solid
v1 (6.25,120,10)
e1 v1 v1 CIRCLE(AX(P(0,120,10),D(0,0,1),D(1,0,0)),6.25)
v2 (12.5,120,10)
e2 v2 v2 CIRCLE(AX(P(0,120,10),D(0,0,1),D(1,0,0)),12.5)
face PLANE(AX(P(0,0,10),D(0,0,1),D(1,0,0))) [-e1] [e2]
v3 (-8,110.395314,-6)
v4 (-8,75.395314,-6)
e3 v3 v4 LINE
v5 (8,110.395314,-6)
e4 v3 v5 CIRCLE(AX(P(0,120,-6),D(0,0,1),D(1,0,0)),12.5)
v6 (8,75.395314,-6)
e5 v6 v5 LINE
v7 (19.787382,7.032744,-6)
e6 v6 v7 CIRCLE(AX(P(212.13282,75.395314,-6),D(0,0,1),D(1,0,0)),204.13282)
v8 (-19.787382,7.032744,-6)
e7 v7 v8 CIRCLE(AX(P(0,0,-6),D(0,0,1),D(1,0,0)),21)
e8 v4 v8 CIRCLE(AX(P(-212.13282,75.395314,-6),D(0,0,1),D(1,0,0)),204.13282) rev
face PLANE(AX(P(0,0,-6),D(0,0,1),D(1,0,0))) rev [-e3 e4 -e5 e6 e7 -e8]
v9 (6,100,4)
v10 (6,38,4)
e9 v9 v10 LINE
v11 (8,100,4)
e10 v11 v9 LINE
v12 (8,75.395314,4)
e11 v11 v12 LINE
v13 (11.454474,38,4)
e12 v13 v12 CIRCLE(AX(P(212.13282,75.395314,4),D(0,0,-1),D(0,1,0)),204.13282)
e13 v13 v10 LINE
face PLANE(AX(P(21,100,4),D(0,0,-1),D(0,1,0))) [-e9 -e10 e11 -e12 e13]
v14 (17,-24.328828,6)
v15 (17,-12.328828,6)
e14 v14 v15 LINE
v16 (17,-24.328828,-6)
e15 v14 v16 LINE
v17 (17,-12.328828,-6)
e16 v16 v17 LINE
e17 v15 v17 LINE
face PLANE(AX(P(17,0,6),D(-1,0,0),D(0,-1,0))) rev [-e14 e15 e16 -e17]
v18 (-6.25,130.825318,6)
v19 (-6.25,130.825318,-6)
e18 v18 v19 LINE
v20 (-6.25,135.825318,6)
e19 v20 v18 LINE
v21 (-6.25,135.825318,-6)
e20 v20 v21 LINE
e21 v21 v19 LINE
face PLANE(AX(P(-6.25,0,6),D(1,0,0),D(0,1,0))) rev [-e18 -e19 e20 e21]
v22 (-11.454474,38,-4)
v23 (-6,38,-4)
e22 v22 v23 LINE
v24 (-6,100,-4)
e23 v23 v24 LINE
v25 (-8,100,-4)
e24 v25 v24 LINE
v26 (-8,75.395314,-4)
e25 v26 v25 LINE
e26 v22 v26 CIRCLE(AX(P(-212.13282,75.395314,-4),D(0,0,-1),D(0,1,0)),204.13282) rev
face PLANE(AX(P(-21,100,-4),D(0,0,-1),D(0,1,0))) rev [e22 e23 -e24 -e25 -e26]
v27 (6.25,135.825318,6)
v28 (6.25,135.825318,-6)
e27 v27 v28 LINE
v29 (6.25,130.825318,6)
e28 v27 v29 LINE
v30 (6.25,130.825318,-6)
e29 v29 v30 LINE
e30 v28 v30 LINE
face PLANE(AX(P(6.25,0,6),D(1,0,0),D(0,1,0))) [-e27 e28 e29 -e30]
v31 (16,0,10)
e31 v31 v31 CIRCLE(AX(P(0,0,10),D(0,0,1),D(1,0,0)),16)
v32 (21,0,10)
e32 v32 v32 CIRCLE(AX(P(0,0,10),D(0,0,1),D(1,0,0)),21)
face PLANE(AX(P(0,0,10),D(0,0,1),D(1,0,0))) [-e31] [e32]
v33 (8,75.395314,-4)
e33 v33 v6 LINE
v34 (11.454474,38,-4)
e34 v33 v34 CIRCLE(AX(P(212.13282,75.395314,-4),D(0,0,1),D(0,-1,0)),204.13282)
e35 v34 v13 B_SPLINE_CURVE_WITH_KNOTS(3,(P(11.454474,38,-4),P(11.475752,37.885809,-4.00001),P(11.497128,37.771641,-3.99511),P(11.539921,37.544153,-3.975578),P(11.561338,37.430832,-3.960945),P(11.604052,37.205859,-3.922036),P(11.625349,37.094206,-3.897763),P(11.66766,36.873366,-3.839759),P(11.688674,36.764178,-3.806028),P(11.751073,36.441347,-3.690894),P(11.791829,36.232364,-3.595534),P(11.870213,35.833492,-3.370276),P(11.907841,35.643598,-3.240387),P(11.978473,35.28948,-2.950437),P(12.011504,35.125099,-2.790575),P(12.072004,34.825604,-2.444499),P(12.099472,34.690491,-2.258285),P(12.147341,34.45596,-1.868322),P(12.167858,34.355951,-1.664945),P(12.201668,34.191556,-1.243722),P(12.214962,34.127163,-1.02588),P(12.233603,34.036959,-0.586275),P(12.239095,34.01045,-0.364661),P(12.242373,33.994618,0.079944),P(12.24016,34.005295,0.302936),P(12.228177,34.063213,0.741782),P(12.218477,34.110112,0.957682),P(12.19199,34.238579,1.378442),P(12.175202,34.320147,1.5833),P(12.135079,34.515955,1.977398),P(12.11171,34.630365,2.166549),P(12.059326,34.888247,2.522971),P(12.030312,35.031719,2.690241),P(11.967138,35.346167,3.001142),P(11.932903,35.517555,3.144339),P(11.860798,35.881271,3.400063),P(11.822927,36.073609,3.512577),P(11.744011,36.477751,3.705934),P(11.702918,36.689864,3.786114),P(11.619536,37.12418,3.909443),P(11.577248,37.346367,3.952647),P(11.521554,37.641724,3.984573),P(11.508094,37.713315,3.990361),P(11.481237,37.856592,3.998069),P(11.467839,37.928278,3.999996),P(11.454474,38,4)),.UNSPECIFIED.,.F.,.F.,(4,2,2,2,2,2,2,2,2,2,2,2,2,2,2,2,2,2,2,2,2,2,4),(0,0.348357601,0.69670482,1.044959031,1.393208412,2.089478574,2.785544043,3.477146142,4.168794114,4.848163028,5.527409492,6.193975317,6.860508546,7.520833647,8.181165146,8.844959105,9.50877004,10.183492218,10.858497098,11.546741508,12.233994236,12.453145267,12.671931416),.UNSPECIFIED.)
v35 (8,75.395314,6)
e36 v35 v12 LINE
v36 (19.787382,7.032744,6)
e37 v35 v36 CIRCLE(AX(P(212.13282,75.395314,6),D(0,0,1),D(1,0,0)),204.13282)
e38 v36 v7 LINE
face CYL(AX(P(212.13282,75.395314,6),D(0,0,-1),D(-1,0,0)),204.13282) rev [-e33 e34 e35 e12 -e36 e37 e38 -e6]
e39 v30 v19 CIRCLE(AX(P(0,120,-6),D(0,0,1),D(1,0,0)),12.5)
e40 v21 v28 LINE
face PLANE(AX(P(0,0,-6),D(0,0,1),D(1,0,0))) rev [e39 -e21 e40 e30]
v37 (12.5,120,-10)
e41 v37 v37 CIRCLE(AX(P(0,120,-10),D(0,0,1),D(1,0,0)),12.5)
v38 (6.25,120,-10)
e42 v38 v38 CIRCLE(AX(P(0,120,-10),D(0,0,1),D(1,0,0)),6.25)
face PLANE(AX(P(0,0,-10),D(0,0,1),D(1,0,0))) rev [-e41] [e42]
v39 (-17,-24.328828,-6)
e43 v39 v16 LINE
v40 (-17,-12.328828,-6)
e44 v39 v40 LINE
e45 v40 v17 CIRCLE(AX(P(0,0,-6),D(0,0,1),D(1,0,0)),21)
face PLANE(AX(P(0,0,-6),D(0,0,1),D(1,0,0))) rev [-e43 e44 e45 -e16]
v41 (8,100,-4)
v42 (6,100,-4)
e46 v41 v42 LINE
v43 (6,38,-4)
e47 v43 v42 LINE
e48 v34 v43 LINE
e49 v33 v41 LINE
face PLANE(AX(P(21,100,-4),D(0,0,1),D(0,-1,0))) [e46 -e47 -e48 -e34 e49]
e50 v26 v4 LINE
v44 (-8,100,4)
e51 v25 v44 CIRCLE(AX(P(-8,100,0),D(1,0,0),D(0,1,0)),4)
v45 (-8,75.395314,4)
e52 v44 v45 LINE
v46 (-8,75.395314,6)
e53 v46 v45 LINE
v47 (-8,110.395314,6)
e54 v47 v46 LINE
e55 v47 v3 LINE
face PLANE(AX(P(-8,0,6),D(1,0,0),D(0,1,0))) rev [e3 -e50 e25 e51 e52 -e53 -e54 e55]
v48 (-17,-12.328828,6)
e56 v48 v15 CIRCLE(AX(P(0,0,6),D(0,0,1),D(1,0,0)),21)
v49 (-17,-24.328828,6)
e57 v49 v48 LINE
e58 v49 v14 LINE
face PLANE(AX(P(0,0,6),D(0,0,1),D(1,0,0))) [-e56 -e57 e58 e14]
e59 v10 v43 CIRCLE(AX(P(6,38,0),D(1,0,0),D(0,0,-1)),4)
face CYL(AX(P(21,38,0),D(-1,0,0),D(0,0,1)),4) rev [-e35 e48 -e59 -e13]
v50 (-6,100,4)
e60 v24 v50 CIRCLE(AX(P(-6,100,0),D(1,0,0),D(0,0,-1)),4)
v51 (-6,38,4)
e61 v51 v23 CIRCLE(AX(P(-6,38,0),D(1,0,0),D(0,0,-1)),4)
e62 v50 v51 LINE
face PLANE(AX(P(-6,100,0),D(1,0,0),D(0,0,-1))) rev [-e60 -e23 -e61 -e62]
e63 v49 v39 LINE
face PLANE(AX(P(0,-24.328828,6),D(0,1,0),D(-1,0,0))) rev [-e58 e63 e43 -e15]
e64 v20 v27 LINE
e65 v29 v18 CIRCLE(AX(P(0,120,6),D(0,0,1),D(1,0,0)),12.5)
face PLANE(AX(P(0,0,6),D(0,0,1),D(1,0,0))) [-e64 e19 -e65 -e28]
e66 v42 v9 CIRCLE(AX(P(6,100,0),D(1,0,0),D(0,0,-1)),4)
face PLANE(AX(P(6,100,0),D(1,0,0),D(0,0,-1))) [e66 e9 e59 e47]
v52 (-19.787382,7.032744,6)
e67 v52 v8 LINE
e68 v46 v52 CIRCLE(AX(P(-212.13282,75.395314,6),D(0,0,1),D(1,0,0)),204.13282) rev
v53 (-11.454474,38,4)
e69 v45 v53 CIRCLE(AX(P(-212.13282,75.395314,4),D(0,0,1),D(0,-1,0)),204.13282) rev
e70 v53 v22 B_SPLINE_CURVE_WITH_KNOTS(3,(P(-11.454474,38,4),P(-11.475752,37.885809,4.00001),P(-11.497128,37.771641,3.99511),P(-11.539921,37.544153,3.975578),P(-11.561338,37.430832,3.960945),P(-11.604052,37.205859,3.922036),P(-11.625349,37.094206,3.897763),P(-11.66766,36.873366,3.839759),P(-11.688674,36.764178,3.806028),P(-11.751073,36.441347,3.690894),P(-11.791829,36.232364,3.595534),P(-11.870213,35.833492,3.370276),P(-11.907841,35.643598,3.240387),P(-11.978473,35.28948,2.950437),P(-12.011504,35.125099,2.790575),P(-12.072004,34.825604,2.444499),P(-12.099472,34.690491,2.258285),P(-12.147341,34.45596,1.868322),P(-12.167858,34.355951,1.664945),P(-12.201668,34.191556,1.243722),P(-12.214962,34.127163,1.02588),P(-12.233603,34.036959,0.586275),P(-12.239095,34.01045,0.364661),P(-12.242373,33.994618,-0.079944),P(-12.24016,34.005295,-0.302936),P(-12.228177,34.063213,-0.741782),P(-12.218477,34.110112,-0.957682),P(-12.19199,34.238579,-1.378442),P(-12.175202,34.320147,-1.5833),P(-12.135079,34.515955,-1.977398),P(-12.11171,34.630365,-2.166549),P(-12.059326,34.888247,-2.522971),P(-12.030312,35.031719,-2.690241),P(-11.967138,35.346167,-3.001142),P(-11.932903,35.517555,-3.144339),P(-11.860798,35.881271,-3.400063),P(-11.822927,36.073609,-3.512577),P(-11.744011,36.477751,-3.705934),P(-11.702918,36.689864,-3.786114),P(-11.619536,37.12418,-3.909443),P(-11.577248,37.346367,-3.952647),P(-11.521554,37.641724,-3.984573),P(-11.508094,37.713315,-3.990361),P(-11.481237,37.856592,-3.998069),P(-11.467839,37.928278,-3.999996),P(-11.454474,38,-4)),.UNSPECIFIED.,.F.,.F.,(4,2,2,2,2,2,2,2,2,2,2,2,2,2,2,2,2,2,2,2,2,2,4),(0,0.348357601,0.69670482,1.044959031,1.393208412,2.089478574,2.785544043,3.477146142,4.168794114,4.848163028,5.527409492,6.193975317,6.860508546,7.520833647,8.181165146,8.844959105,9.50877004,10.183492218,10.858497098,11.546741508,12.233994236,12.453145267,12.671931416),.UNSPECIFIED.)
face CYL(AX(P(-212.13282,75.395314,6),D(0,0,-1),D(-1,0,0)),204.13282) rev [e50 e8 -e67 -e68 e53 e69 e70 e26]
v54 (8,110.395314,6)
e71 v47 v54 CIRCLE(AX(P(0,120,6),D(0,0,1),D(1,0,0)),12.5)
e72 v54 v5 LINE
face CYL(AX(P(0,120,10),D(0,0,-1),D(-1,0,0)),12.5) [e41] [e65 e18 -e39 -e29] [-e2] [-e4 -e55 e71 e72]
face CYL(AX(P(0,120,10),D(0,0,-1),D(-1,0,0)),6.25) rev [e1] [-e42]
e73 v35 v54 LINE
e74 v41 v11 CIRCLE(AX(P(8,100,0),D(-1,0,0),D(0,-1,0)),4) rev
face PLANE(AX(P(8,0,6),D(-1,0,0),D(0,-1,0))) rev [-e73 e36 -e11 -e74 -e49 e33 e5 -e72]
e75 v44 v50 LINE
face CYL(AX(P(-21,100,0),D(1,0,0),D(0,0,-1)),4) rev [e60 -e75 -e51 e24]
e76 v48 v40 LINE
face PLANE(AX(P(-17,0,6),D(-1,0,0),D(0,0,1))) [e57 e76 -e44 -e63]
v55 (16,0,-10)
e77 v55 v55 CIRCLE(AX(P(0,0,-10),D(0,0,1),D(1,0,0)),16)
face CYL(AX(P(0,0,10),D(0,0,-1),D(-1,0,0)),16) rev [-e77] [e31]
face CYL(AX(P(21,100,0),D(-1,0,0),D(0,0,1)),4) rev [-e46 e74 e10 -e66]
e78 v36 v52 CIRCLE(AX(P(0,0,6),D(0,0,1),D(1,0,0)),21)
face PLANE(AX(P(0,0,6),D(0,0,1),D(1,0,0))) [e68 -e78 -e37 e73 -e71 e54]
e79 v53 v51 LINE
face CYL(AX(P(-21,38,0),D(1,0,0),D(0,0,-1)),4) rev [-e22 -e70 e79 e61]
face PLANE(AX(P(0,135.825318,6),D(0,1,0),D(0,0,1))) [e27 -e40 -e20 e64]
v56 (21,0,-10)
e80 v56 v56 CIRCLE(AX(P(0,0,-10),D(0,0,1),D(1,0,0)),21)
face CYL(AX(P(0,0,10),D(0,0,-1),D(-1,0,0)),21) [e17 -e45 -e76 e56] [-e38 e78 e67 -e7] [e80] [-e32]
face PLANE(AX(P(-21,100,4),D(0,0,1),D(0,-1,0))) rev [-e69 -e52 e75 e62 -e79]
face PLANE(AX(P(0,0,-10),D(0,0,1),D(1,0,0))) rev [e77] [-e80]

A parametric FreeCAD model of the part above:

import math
import FreeCAD as App
import Part
import Sketcher

V = App.Vector

doc = App.newDocument("Part")
body = doc.addObject("PartDesign::Body", "Body")

sketch1 = body.newObject("Sketcher::SketchObject", "Sketch")
sketch1.AttachmentSupport = (doc.getObject("XY_Plane"), [""])
sketch1.MapMode = "FlatFace"
sketch1.addGeometry([
    Part.Circle(V(0, 0, 0), V(0, 0, 1), 21),
    Part.Circle(V(0, 0, 0), V(0, 0, 1), 16),
], False)
sketch1.addConstraint([
    Sketcher.Constraint("Coincident", 0, 3, -1, 1),
    Sketcher.Constraint("Coincident", 1, 3, -1, 1),
    Sketcher.Constraint("Diameter", 0, 42.0),
    Sketcher.Constraint("Diameter", 1, 32.0),
])
pad1 = body.newObject("PartDesign::Pad", "Pad")
pad1.Profile = sketch1
pad1.Length = 20
pad1.Midplane = True
body2 = doc.addObject("PartDesign::Body", "Body001")

sketch2 = body2.newObject("Sketcher::SketchObject", "Sketch001")
sketch2.AttachmentSupport = (doc.getObject("XY_Plane001"), [""])
sketch2.MapMode = "FlatFace"
sketch2.addGeometry([
    Part.Circle(V(0, 120, 0), V(0, 0, 1), 12.5),
    Part.Circle(V(0, 120, 0), V(0, 0, 1), 6.25),
], False)
sketch2.addConstraint([
    Sketcher.Constraint("Coincident", 1, 3, 0, 3),
    Sketcher.Constraint("PointOnObject", 0, 3, -2),
    Sketcher.Constraint("Diameter", 0, 25.0),
    Sketcher.Constraint("Diameter", 1, 12.5),
    Sketcher.Constraint("DistanceY", -1, 1, 0, 3, 120.0),
])
pad2 = body2.newObject("PartDesign::Pad", "Pad001")
pad2.Profile = sketch2
pad2.Length = 20
pad2.Midplane = True
body.AllowCompound = True
doc.recompute()

boolean = body.newObject("PartDesign::Boolean", "Boolean")
boolean.Type = "Fuse"
boolean.addObjects([body2])

sketch3 = body.newObject("Sketcher::SketchObject", "Sketch002")
sketch3.AttachmentSupport = (doc.getObject("XY_Plane"), [""])
sketch3.MapMode = "FlatFace"
sketch3.addGeometry([
    Part.ArcOfCircle(Part.Circle(V(0, 120, 0), V(0, 0, 1), 12.5), math.radians(-129.791819), math.radians(-50.208181)),
    Part.LineSegment(V(-8, 110.395314, 0), V(-8, 75.395314, 0)),
    Part.ArcOfCircle(Part.Circle(V(-212.13282, 75.395314, 0), V(0, 0, 1), 204.13282), math.radians(-19.566007), math.radians(0)),
    Part.ArcOfCircle(Part.Circle(V(0, 0, 0), V(0, 0, 1), 21), math.radians(19.566007), math.radians(160.433993)),
    Part.ArcOfCircle(Part.Circle(V(212.13282, 75.395314, 0), V(0, 0, 1), 204.13282), math.radians(180), math.radians(199.566007)),
    Part.LineSegment(V(8, 75.395314, 0), V(8, 110.395314, 0)),
], False)
sketch3.addConstraint([
    Sketcher.Constraint("Coincident", 0, 1, 1, 1),
    Sketcher.Constraint("Tangent", 1, 2, 2, 2),
    Sketcher.Constraint("Tangent", 2, 1, 3, 2),
    Sketcher.Constraint("Tangent", 3, 1, 4, 2),
    Sketcher.Constraint("Tangent", 4, 1, 5, 1),
    Sketcher.Constraint("Coincident", 5, 2, 0, 2),
    Sketcher.Constraint("Vertical", 1),
    Sketcher.Constraint("Vertical", 5),
    Sketcher.Constraint("Coincident", 3, 3, -1, 1),
    Sketcher.Constraint("Equal", 2, 4),
    Sketcher.Constraint("Symmetric", 0, 1, 5, 2, -2),
    Sketcher.Constraint("Radius", 3, 21.0),
    Sketcher.Constraint("Radius", 0, 12.5),
    Sketcher.Constraint("DistanceY", 1, 2, 1, 1, 35.0),
    Sketcher.Constraint("DistanceY", -1, 1, 0, 3, 120.0),
    Sketcher.Constraint("DistanceX", 0, 1, -1, 1, 8.0),
])
pad3 = body.newObject("PartDesign::Pad", "Pad002")
pad3.Profile = sketch3
pad3.Length = 12
pad3.Midplane = True

sketch4 = body.newObject("Sketcher::SketchObject", "Sketch003")
sketch4.AttachmentSupport = (doc.getObject("XY_Plane"), [""])
sketch4.MapMode = "FlatFace"
sketch4.addGeometry([
    Part.LineSegment(V(-6.25, 135.825318, 0), V(-6.25, 130.825318, 0)),
    Part.ArcOfCircle(Part.Circle(V(0, 120, 0), V(0, 0, 1), 12.5), math.radians(60), math.radians(120)),
    Part.LineSegment(V(6.25, 130.825318, 0), V(6.25, 135.825318, 0)),
    Part.LineSegment(V(6.25, 135.825318, 0), V(-6.25, 135.825318, 0)),
], False)
sketch4.addConstraint([
    Sketcher.Constraint("Coincident", 0, 2, 1, 2),
    Sketcher.Constraint("Coincident", 1, 1, 2, 1),
    Sketcher.Constraint("Coincident", 2, 2, 3, 1),
    Sketcher.Constraint("Coincident", 3, 2, 0, 1),
    Sketcher.Constraint("Vertical", 0),
    Sketcher.Constraint("Vertical", 2),
    Sketcher.Constraint("Horizontal", 3),
    Sketcher.Constraint("Symmetric", 0, 2, 1, 1, -2),
    Sketcher.Constraint("Radius", 1, 12.5),
    Sketcher.Constraint("DistanceY", 0, 2, 0, 1, 5.0),
    Sketcher.Constraint("DistanceX", 3, 2, 3, 1, 12.5),
    Sketcher.Constraint("DistanceY", -1, 1, 1, 3, 120.0),
])
pad4 = body.newObject("PartDesign::Pad", "Pad003")
pad4.Profile = sketch4
pad4.Length = 12
pad4.Midplane = True

sketch5 = body.newObject("Sketcher::SketchObject", "Sketch004")
sketch5.AttachmentSupport = (doc.getObject("XY_Plane"), [""])
sketch5.MapMode = "FlatFace"
sketch5.addGeometry([
    Part.ArcOfCircle(Part.Circle(V(0, 0, 0), V(0, 0, 1), 21), math.radians(-144.049432), math.radians(-35.950568)),
    Part.LineSegment(V(-17, -12.328828, 0), V(-17, -24.328828, 0)),
    Part.LineSegment(V(-17, -24.328828, 0), V(17, -24.328828, 0)),
    Part.LineSegment(V(17, -24.328828, 0), V(17, -12.328828, 0)),
], False)
sketch5.addConstraint([
    Sketcher.Constraint("Coincident", 0, 1, 1, 1),
    Sketcher.Constraint("Coincident", 1, 2, 2, 1),
    Sketcher.Constraint("Coincident", 2, 2, 3, 1),
    Sketcher.Constraint("Coincident", 3, 2, 0, 2),
    Sketcher.Constraint("Vertical", 1),
    Sketcher.Constraint("Horizontal", 2),
    Sketcher.Constraint("Vertical", 3),
    Sketcher.Constraint("Coincident", 0, 3, -1, 1),
    Sketcher.Constraint("Horizontal", 0, 1, 3, 2),
    Sketcher.Constraint("Radius", 0, 21.0),
    Sketcher.Constraint("DistanceX", 2, 1, 2, 2, 34.0),
    Sketcher.Constraint("DistanceY", 1, 2, 1, 1, 12.0),
])
pad5 = body.newObject("PartDesign::Pad", "Pad004")
pad5.Profile = sketch5
pad5.Length = 12
pad5.Midplane = True

sketch6 = body.newObject("Sketcher::SketchObject", "Sketch005")
sketch6.AttachmentSupport = (doc.getObject("YZ_Plane"), [""])
sketch6.MapMode = "FlatFace"
sketch6.AttachmentOffset = App.Placement(V(0, 0, 6), App.Rotation())
sketch6.addGeometry([
    Part.LineSegment(V(38, -4, 0), V(100, -4, 0)),
    Part.ArcOfCircle(Part.Circle(V(100, 0, 0), V(0, 0, 1), 4), math.radians(-90), math.radians(90)),
    Part.LineSegment(V(100, 4, 0), V(38, 4, 0)),
    Part.ArcOfCircle(Part.Circle(V(38, 0, 0), V(0, 0, 1), 4), math.radians(90), math.radians(270)),
], False)
sketch6.addConstraint([
    Sketcher.Constraint("Tangent", 0, 2, 1, 1),
    Sketcher.Constraint("Tangent", 1, 2, 2, 1),
    Sketcher.Constraint("Tangent", 2, 2, 3, 1),
    Sketcher.Constraint("Tangent", 3, 2, 0, 1),
    Sketcher.Constraint("Horizontal", 0),
    Sketcher.Constraint("Horizontal", 2),
    Sketcher.Constraint("PointOnObject", 1, 3, -1),
    Sketcher.Constraint("Radius", 1, 4.0),
    Sketcher.Constraint("DistanceX", 0, 1, 0, 2, 62.0),
    Sketcher.Constraint("DistanceX", -1, 1, 1, 3, 100.0),
])
pocket1 = body.newObject("PartDesign::Pocket", "Pocket")
pocket1.Profile = sketch6
pocket1.Type = "ThroughAll"
pocket1.Reversed = True

sketch7 = body.newObject("Sketcher::SketchObject", "Sketch006")
sketch7.AttachmentSupport = (doc.getObject("YZ_Plane"), [""])
sketch7.MapMode = "FlatFace"
sketch7.AttachmentOffset = App.Placement(V(0, 0, -6), App.Rotation())
sketch7.addGeometry([
    Part.LineSegment(V(38, -4, 0), V(100, -4, 0)),
    Part.ArcOfCircle(Part.Circle(V(100, 0, 0), V(0, 0, 1), 4), math.radians(-90), math.radians(90)),
    Part.LineSegment(V(100, 4, 0), V(38, 4, 0)),
    Part.ArcOfCircle(Part.Circle(V(38, 0, 0), V(0, 0, 1), 4), math.radians(90), math.radians(270)),
], False)
sketch7.addConstraint([
    Sketcher.Constraint("Tangent", 0, 2, 1, 1),
    Sketcher.Constraint("Tangent", 1, 2, 2, 1),
    Sketcher.Constraint("Tangent", 2, 2, 3, 1),
    Sketcher.Constraint("Tangent", 3, 2, 0, 1),
    Sketcher.Constraint("Horizontal", 0),
    Sketcher.Constraint("Horizontal", 2),
    Sketcher.Constraint("PointOnObject", 1, 3, -1),
    Sketcher.Constraint("Radius", 1, 4.0),
    Sketcher.Constraint("DistanceX", 0, 1, 0, 2, 62.0),
    Sketcher.Constraint("DistanceX", -1, 1, 1, 3, 100.0),
])
pocket2 = body.newObject("PartDesign::Pocket", "Pocket001")
pocket2.Profile = sketch7
pocket2.Type = "ThroughAll"

doc.recompute()
